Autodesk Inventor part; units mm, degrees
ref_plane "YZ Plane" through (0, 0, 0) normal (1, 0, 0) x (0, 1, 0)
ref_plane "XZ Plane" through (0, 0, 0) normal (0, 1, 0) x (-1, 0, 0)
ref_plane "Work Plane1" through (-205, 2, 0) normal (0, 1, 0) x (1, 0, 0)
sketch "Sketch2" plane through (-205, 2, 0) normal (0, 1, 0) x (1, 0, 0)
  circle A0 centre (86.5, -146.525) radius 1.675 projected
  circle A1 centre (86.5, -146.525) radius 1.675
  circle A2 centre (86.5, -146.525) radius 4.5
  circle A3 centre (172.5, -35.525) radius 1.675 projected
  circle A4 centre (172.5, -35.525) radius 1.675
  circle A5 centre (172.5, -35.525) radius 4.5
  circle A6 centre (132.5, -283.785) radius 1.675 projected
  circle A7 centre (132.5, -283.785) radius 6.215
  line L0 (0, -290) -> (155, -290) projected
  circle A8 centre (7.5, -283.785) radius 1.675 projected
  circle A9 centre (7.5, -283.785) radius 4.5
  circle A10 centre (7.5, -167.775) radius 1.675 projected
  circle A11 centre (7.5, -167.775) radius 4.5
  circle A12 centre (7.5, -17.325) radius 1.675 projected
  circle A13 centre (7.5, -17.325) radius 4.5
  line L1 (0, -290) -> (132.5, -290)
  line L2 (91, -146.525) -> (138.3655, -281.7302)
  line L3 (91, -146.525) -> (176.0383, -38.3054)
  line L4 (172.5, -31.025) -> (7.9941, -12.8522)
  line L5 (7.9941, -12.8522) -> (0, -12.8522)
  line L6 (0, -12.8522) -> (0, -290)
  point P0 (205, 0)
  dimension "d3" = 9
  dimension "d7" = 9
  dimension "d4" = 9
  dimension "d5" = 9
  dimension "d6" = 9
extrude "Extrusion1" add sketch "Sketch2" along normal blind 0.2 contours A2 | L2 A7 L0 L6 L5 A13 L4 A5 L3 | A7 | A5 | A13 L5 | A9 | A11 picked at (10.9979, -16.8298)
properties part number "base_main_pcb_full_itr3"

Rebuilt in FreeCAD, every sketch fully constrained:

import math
import FreeCAD as App
import Part
import Sketcher

V = App.Vector

doc = App.newDocument("Part")
body = doc.addObject("PartDesign::Body", "Body")

# Sketch on XZ plane
sketch1 = body.newObject("Sketcher::SketchObject", "Sketch")
sketch1.AttachmentSupport = (doc.getObject("XZ_Plane"), [""])
sketch1.MapMode = "FlatFace"
sketch1.AttachmentOffset = App.Placement(V(0, 0, -2), App.Rotation())
sketch1.addGeometry(Part.LineSegment(V(-66.6, 281.7, 0), V(-114, 146.5, 0)), False)
sketch1.addGeometry(Part.LineSegment(V(-114, 146.5, 0), V(-29, 38.3, 0)), False)
sketch1.addGeometry(Part.ArcOfCircle(Part.Circle(V(-32.5, 35.5, 0), V(0, 0, 1), 4.5), math.radians(-90), math.radians(38)), False)
sketch1.addGeometry(Part.LineSegment(V(-32.5, 31, 0), V(-197, 12.9, 0)), False)
sketch1.addGeometry(Part.LineSegment(V(-197, 12.9, 0), V(-205, 12.9, 0)), False)
sketch1.addGeometry(Part.LineSegment(V(-205, 12.9, 0), V(-205, 290, 0)), False)
sketch1.addGeometry(Part.LineSegment(V(-205, 290, 0), V(-72.5, 290, 0)), False)
sketch1.addGeometry(Part.ArcOfCircle(Part.Circle(V(-72.5, 283.8, 0), V(0, 0, 1), 6.2), math.radians(-19), math.radians(90)), False)
sketch1.addGeometry(Part.Circle(V(-118.5, 146.5, 0), V(0, 0, 1), 1.7), False)
sketch1.addGeometry(Part.Circle(V(-72.5, 283.8, 0), V(0, 0, 1), 1.7), False)
sketch1.addGeometry(Part.Circle(V(-197.5, 17.3, 0), V(0, 0, 1), 1.7), False)
sketch1.addGeometry(Part.Circle(V(-32.5, 35.5, 0), V(0, 0, 1), 1.7), False)
sketch1.addGeometry(Part.Circle(V(-197.5, 283.8, 0), V(0, 0, 1), 1.7), False)
sketch1.addGeometry(Part.Circle(V(-197.5, 167.8, 0), V(0, 0, 1), 1.7), False)
sketch1.addConstraint(Sketcher.Constraint("Coincident", 0, 2, 1, 1))
sketch1.addConstraint(Sketcher.Constraint("Tangent", 1, 2, 2, 2))
sketch1.addConstraint(Sketcher.Constraint("Coincident", 2, 1, 3, 1))
sketch1.addConstraint(Sketcher.Constraint("Coincident", 3, 2, 4, 1))
sketch1.addConstraint(Sketcher.Constraint("Coincident", 4, 2, 5, 1))
sketch1.addConstraint(Sketcher.Constraint("Coincident", 5, 2, 6, 1))
sketch1.addConstraint(Sketcher.Constraint("Tangent", 6, 2, 7, 2))
sketch1.addConstraint(Sketcher.Constraint("Tangent", 7, 1, 0, 1))
sketch1.addConstraint(Sketcher.Constraint("Horizontal", 4))
sketch1.addConstraint(Sketcher.Constraint("Vertical", 5))
sketch1.addConstraint(Sketcher.Constraint("Horizontal", 6))
sketch1.addConstraint(Sketcher.Constraint("Coincident", 9, 3, 7, 3))
sketch1.addConstraint(Sketcher.Constraint("Coincident", 11, 3, 2, 3))
sketch1.addConstraint(Sketcher.Constraint("Equal", 8, 9))
sketch1.addConstraint(Sketcher.Constraint("Equal", 9, 10))
sketch1.addConstraint(Sketcher.Constraint("Equal", 10, 11))
sketch1.addConstraint(Sketcher.Constraint("Equal", 11, 12))
sketch1.addConstraint(Sketcher.Constraint("Equal", 12, 13))
sketch1.addConstraint(Sketcher.Constraint("Horizontal", 9, 3, 12, 3))
sketch1.addConstraint(Sketcher.Constraint("Horizontal", 8, 3, 0, 2))
sketch1.addConstraint(Sketcher.Constraint("Vertical", 10, 3, 12, 3))
sketch1.addConstraint(Sketcher.Constraint("Vertical", 12, 3, 13, 3))
sketch1.addConstraint(Sketcher.Constraint("Vertical", 11, 3, 2, 1))
sketch1.addConstraint(Sketcher.Constraint("Radius", 2, 4.5))
sketch1.addConstraint(Sketcher.Constraint("Diameter", 8, 3.35))
sketch1.addConstraint(Sketcher.Constraint("DistanceX", 6, 1, 6, 2, 132.5))
sketch1.addConstraint(Sketcher.Constraint("DistanceX", 0, 2, -1, 1, 114.0))
sketch1.addConstraint(Sketcher.Constraint("DistanceX", 4, 2, -1, 1, 205.0))
sketch1.addConstraint(Sketcher.Constraint("DistanceY", -1, 1, 5, 2, 290.0))
sketch1.addConstraint(Sketcher.Constraint("Radius", 7, 6.215))
sketch1.addConstraint(Sketcher.Constraint("DistanceX", 7, 3, 2, 3, 40.0))
sketch1.addConstraint(Sketcher.Constraint("DistanceX", 8, 3, 2, 3, 86.0))
sketch1.addConstraint(Sketcher.Constraint("DistanceY", 2, 3, 8, 3, 111.0))
sketch1.addConstraint(Sketcher.Constraint("DistanceX", 10, 3, 8, 3, 79.0))
sketch1.addConstraint(Sketcher.Constraint("DistanceY", 10, 3, 8, 3, 129.2))
sketch1.addConstraint(Sketcher.Constraint("DistanceX", 4, 2, 4, 1, 7.994))
sketch1.addConstraint(Sketcher.Constraint("DistanceY", 2, 3, 7, 3, 248.26))
sketch1.addConstraint(Sketcher.Constraint("DistanceY", 8, 3, 13, 3, 21.25))
sketch1.addConstraint(Sketcher.Constraint("DistanceY", 5, 1, 5, 2, 277.1478))
pad1 = body.newObject("PartDesign::Pad", "Pad")
pad1.Profile = sketch1
pad1.Length = 0.2
pad1.Reversed = True

doc.recompute()
